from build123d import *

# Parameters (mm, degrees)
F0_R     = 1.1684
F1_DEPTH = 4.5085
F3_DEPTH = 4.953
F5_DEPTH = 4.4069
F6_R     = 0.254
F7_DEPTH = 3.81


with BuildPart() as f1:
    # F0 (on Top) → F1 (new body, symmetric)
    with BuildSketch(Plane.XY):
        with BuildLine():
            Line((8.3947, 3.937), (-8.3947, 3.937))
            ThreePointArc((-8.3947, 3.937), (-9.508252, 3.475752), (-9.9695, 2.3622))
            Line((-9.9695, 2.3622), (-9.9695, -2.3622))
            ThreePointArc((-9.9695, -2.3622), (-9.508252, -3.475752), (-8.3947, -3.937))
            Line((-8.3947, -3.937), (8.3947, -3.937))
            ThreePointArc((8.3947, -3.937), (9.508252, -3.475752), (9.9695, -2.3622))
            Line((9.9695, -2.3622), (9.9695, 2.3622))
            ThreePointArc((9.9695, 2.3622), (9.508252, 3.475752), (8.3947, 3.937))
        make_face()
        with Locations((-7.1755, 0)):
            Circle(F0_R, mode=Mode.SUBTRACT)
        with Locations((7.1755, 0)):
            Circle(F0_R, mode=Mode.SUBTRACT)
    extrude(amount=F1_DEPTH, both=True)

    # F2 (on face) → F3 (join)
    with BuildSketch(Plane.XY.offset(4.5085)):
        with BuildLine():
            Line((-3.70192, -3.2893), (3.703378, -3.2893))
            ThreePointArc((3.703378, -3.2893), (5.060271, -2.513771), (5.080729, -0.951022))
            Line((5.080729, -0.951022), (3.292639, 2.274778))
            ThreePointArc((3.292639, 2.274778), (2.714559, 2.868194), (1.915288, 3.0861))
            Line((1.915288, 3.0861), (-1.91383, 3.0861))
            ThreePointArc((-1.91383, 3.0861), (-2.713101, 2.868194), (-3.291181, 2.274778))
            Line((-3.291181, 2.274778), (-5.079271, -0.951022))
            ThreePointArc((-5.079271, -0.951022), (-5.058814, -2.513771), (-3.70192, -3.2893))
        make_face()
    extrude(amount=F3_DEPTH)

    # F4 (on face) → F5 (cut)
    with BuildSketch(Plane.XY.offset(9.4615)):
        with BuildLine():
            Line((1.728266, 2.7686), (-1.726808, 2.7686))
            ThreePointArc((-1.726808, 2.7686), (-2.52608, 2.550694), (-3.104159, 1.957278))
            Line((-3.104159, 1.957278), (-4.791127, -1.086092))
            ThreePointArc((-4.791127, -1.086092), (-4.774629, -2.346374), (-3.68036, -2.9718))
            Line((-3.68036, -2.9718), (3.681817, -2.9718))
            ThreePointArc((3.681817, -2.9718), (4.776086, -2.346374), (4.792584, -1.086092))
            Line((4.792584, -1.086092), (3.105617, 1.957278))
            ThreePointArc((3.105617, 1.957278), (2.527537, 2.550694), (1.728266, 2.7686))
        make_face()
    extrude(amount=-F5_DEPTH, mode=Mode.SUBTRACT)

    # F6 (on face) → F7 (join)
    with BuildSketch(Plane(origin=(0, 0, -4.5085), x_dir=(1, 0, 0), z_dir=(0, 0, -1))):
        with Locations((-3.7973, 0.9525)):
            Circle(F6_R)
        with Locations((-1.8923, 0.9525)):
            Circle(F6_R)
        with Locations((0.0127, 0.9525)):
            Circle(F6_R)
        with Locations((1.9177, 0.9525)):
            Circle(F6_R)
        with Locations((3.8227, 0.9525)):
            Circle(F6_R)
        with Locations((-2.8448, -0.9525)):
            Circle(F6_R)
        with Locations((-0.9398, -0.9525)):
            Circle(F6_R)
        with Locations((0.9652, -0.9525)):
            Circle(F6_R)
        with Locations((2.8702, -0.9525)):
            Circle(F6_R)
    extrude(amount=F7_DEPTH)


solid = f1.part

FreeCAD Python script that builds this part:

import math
import FreeCAD as App
import Part
import Sketcher
Q = App.Units.Quantity

doc = App.newDocument("Part")
params = doc.addObject("Spreadsheet::Sheet", "Params")
for row, (alias, value) in enumerate([
    ("sketch1_diameter", "0.092 in"),
    ("sketch1_radius", "0.062 in"),
    ("sketch1_width", "0.661 in"),
    ("sketch1_height", "0.186 in"),
    ("pad1_length", "0.355 in"),
    ("sketch2_radius", "0.062 in"),
    ("pad2_length", "0.195 in"),
    ("sketch3_radius", "0.05 in"),
    ("sketch3_radius2", "0.0619998 in"),
    ("sketch3_radius3", "0.0619999 in"),
    ("pocket1_length", "0.1735 in"),
    ("sketch4_diameter", "0.02 in"),
    ("pad3_length", "0.15 in"),
], start=1):
    params.set(f"A{row}", alias)
    params.set(f"B{row}", "=" + value)
    params.setAlias(f"B{row}", alias)

body = doc.addObject("PartDesign::Body", "Body")

# Sketch on XY plane
sketch1 = body.newObject("Sketcher::SketchObject", "Sketch")
sketch1.AttachmentSupport = (doc.getObject("XY_Plane"), [""])
sketch1.MapMode = "FlatFace"
sketch1.addGeometry([
    Part.LineSegment(App.Vector(8.3947, 3.937, 0), App.Vector(-8.3947, 3.937, 0)),  # 0
    Part.ArcOfCircle(Part.Circle(App.Vector(-8.394701, 2.362201, 0), App.Vector(0, 0, 1), 1.574799), math.radians(89.99997), math.radians(180.00003)),  # 1
    Part.LineSegment(App.Vector(-9.9695, 2.3622, 0), App.Vector(-9.9695, -2.3622, 0)),  # 2
    Part.ArcOfCircle(Part.Circle(App.Vector(-8.394701, -2.362201, 0), App.Vector(0, 0, 1), 1.574799), math.radians(179.99997), math.radians(270.00003)),  # 3
    Part.LineSegment(App.Vector(-8.3947, -3.937, 0), App.Vector(8.3947, -3.937, 0)),  # 4
    Part.ArcOfCircle(Part.Circle(App.Vector(8.394701, -2.362201, 0), App.Vector(0, 0, 1), 1.574799), math.radians(-90.00003), math.radians(0.00003)),  # 5
    Part.LineSegment(App.Vector(9.9695, -2.3622, 0), App.Vector(9.9695, 2.3622, 0)),  # 6
    Part.ArcOfCircle(Part.Circle(App.Vector(8.394701, 2.362201, 0), App.Vector(0, 0, 1), 1.574799), math.radians(-0.00003), math.radians(90.00003)),  # 7
    Part.Circle(App.Vector(-7.1755, 0, 0), App.Vector(0, 0, 1), 1.1684),  # 8
    Part.Circle(App.Vector(7.1755, 0, 0), App.Vector(0, 0, 1), 1.1684),  # 9
], False)
sketch1.addConstraint([
    Sketcher.Constraint("Tangent", 0, 2, 1, 1),
    Sketcher.Constraint("Tangent", 1, 2, 2, 1),
    Sketcher.Constraint("Tangent", 2, 2, 3, 1),
    Sketcher.Constraint("Tangent", 3, 2, 4, 1),
    Sketcher.Constraint("Tangent", 4, 2, 5, 1),
    Sketcher.Constraint("Tangent", 5, 2, 6, 1),
    Sketcher.Constraint("Tangent", 6, 2, 7, 1),
    Sketcher.Constraint("Tangent", 7, 2, 0, 1),
    Sketcher.Constraint("Horizontal", 0),
    Sketcher.Constraint("Vertical", 2),
    Sketcher.Constraint("Horizontal", 4),
    Sketcher.Constraint("Vertical", 6),
    Sketcher.Constraint("Equal", 1, 3),
    Sketcher.Constraint("Equal", 3, 5),
    Sketcher.Constraint("Equal", 5, 7),
    Sketcher.Constraint("Equal", 8, 9),
    Sketcher.Constraint("Symmetric", 1, 3, 5, 3, -1, 1),
    Sketcher.Constraint("Symmetric", 8, 3, 9, 3, -1, 1),
    Sketcher.Constraint("PointOnObject", 8, 3, -1),
    Sketcher.Constraint("Diameter", 8, Q("0.092 in")),
    Sketcher.Constraint("Radius", 1, Q("0.062 in")),
    Sketcher.Constraint("DistanceX", 0, 2, 0, 1, Q("0.661 in")),
    Sketcher.Constraint("DistanceY", 2, 2, 2, 1, Q("0.186 in")),
    Sketcher.Constraint("DistanceX", 1, 2, 8, 3, Q("0.11 in")),
])
sketch1.setExpression("Constraints[19]", "Params.sketch1_diameter")
sketch1.setExpression("Constraints[20]", "Params.sketch1_radius")
sketch1.setExpression("Constraints[21]", "Params.sketch1_width")
sketch1.setExpression("Constraints[22]", "Params.sketch1_height")
pad1 = body.newObject("PartDesign::Pad", "Pad")
pad1.Profile = sketch1
pad1.setExpression("Length", "Params.pad1_length")
pad1.Midplane = True

# Sketch on XY plane
sketch2 = body.newObject("Sketcher::SketchObject", "Sketch001")
sketch2.AttachmentSupport = (doc.getObject("XY_Plane"), [""])
sketch2.MapMode = "FlatFace"
sketch2.AttachmentOffset = App.Placement(App.Vector(0, 0, 0.1775 * 25.4), App.Rotation())
sketch2.addGeometry([
    Part.LineSegment(App.Vector(-3.70192, -3.2893, 0), App.Vector(3.703378, -3.2893, 0)),  # 0
    Part.ArcOfCircle(Part.Circle(App.Vector(3.703377, -1.714499, 0), App.Vector(0, 0, 1), 1.574801), math.radians(-89.999958), math.radians(28.999958)),  # 1
    Part.LineSegment(App.Vector(5.080729, -0.951022, 0), App.Vector(3.292639, 2.274778, 0)),  # 2
    Part.ArcOfCircle(Part.Circle(App.Vector(1.915289, 1.511302, 0), App.Vector(0, 0, 1), 1.574798), math.radians(28.999959), math.radians(90.000025)),  # 3
    Part.LineSegment(App.Vector(1.915288, 3.0861, 0), App.Vector(-1.91383, 3.0861, 0)),  # 4
    Part.ArcOfCircle(Part.Circle(App.Vector(-1.913831, 1.511302, 0), App.Vector(0, 0, 1), 1.574798), math.radians(89.999975), math.radians(151.000041)),  # 5
    Part.LineSegment(App.Vector(-3.291181, 2.274778, 0), App.Vector(-5.079271, -0.951022, 0)),  # 6
    Part.ArcOfCircle(Part.Circle(App.Vector(-3.70192, -1.7145, 0), App.Vector(0, 0, 1), 1.5748), math.radians(150.999987), math.radians(270.000013)),  # 7
], False)
sketch2.addConstraint([
    Sketcher.Constraint("Tangent", 0, 2, 1, 1),
    Sketcher.Constraint("Tangent", 1, 2, 2, 1),
    Sketcher.Constraint("Tangent", 2, 2, 3, 1),
    Sketcher.Constraint("Tangent", 3, 2, 4, 1),
    Sketcher.Constraint("Tangent", 4, 2, 5, 1),
    Sketcher.Constraint("Tangent", 5, 2, 6, 1),
    Sketcher.Constraint("Tangent", 6, 2, 7, 1),
    Sketcher.Constraint("Tangent", 7, 2, 0, 1),
    Sketcher.Constraint("Horizontal", 0),
    Sketcher.Constraint("Horizontal", 4),
    Sketcher.Constraint("Equal", 3, 5),
    Sketcher.Constraint("Equal", 5, 7),
    Sketcher.Constraint("Horizontal", 1, 3, 7, 3),
    Sketcher.Constraint("Horizontal", 2, 2, 5, 2),
    Sketcher.Constraint("Angle", 2, Q("118.999998 deg")),
    Sketcher.Constraint("Radius", 1, Q("0.062 in")),
    Sketcher.Constraint("DistanceY", 1, 3, 3, 3, Q("0.127 in")),
    Sketcher.Constraint("DistanceY", 1, 3, -1, 1, Q("0.0675 in")),
    Sketcher.Constraint("DistanceX", 4, 2, 4, 1, 3.829118),
    Sketcher.Constraint("DistanceX", -1, 1, 3, 3, 1.915289),
])
sketch2.setExpression("Constraints[15]", "Params.sketch2_radius")
pad2 = body.newObject("PartDesign::Pad", "Pad001")
pad2.Profile = sketch2
pad2.setExpression("Length", "Params.pad2_length")

# Sketch on XY plane
sketch3 = body.newObject("Sketcher::SketchObject", "Sketch002")
sketch3.AttachmentSupport = (doc.getObject("XY_Plane"), [""])
sketch3.MapMode = "FlatFace"
sketch3.AttachmentOffset = App.Placement(App.Vector(0, 0, 0.3725 * 25.4), App.Rotation())
sketch3.addGeometry([
    Part.LineSegment(App.Vector(1.728266, 2.7686, 0), App.Vector(-1.726808, 2.7686, 0)),  # 0
    Part.ArcOfCircle(Part.Circle(App.Vector(-1.726811, 1.193805, 0), App.Vector(0, 0, 1), 1.574795), math.radians(89.999908), math.radians(151.000108)),  # 1
    Part.LineSegment(App.Vector(-3.104159, 1.957278, 0), App.Vector(-4.791127, -1.086092, 0)),  # 2
    Part.ArcOfCircle(Part.Circle(App.Vector(-3.68036, -1.7018, 0), App.Vector(0, 0, 1), 1.27), math.radians(150.999992), math.radians(270.000012)),  # 3
    Part.LineSegment(App.Vector(-3.68036, -2.9718, 0), App.Vector(3.681817, -2.9718, 0)),  # 4
    Part.ArcOfCircle(Part.Circle(App.Vector(3.681817, -1.7018, 0), App.Vector(0, 0, 1), 1.27), math.radians(-90.000012), math.radians(29.000008)),  # 5
    Part.LineSegment(App.Vector(4.792584, -1.086092, 0), App.Vector(3.105617, 1.957278, 0)),  # 6
    Part.ArcOfCircle(Part.Circle(App.Vector(1.728267, 1.193802, 0), App.Vector(0, 0, 1), 1.574798), math.radians(28.999959), math.radians(90.000025)),  # 7
], False)
sketch3.addConstraint([
    Sketcher.Constraint("Tangent", 0, 2, 1, 1),
    Sketcher.Constraint("Coincident", 1, 2, 2, 1),
    Sketcher.Constraint("Tangent", 2, 2, 3, 1),
    Sketcher.Constraint("Tangent", 3, 2, 4, 1),
    Sketcher.Constraint("Tangent", 4, 2, 5, 1),
    Sketcher.Constraint("Tangent", 5, 2, 6, 1),
    Sketcher.Constraint("Tangent", 6, 2, 7, 1),
    Sketcher.Constraint("Tangent", 7, 2, 0, 1),
    Sketcher.Constraint("Horizontal", 0),
    Sketcher.Constraint("Horizontal", 4),
    Sketcher.Constraint("Equal", 3, 5),
    Sketcher.Constraint("Horizontal", 2, 2, 5, 2),
    Sketcher.Constraint("Horizontal", 1, 2, 6, 2),
    Sketcher.Constraint("Radius", 3, Q("0.05 in")),
    Sketcher.Constraint("Angle", 2, Q("-119.000007 deg")),
    Sketcher.Constraint("Radius", 1, Q("0.0619998 in")),
    Sketcher.Constraint("Radius", 7, Q("0.0619999 in")),
    Sketcher.Constraint("DistanceY", -1, 1, 1, 3, Q("0.0470002 in")),
    Sketcher.Constraint("DistanceY", 3, 3, -1, 1, Q("0.067 in")),
    Sketcher.Constraint("DistanceX", 0, 2, 0, 1, 3.455074),
    Sketcher.Constraint("DistanceX", 1, 3, -1, 1, 1.726811),
])
sketch3.setExpression("Constraints[13]", "Params.sketch3_radius")
sketch3.setExpression("Constraints[15]", "Params.sketch3_radius2")
sketch3.setExpression("Constraints[16]", "Params.sketch3_radius3")
pocket1 = body.newObject("PartDesign::Pocket", "Pocket")
pocket1.Profile = sketch3
pocket1.setExpression("Length", "Params.pocket1_length")

# Sketch on XY plane
sketch4 = body.newObject("Sketcher::SketchObject", "Sketch003")
sketch4.AttachmentSupport = (doc.getObject("XY_Plane"), [""])
sketch4.MapMode = "FlatFace"
sketch4.AttachmentOffset = App.Placement(App.Vector(0, 0, -0.1775 * 25.4), App.Rotation())
sketch4.addGeometry([
    Part.Circle(App.Vector(-3.7973, -0.9525, 0), App.Vector(0, 0, 1), 0.254),  # 0
    Part.Circle(App.Vector(-1.8923, -0.9525, 0), App.Vector(0, 0, 1), 0.254),  # 1
    Part.Circle(App.Vector(0.0127, -0.9525, 0), App.Vector(0, 0, 1), 0.254),  # 2
    Part.Circle(App.Vector(1.9177, -0.9525, 0), App.Vector(0, 0, 1), 0.254),  # 3
    Part.Circle(App.Vector(3.8227, -0.9525, 0), App.Vector(0, 0, 1), 0.254),  # 4
    Part.Circle(App.Vector(-2.8448, 0.9525, 0), App.Vector(0, 0, 1), 0.254),  # 5
    Part.Circle(App.Vector(-0.9398, 0.9525, 0), App.Vector(0, 0, 1), 0.254),  # 6
    Part.Circle(App.Vector(0.9652, 0.9525, 0), App.Vector(0, 0, 1), 0.254),  # 7
    Part.Circle(App.Vector(2.8702, 0.9525, 0), App.Vector(0, 0, 1), 0.254),  # 8
], False)
sketch4.addConstraint([
    Sketcher.Constraint("Equal", 0, 1),
    Sketcher.Constraint("Equal", 1, 2),
    Sketcher.Constraint("Equal", 2, 3),
    Sketcher.Constraint("Equal", 3, 4),
    Sketcher.Constraint("Equal", 4, 5),
    Sketcher.Constraint("Equal", 5, 6),
    Sketcher.Constraint("Equal", 6, 7),
    Sketcher.Constraint("Equal", 7, 8),
    Sketcher.Constraint("Horizontal", 0, 3, 1, 3),
    Sketcher.Constraint("Horizontal", 1, 3, 2, 3),
    Sketcher.Constraint("Horizontal", 2, 3, 3, 3),
    Sketcher.Constraint("Horizontal", 3, 3, 4, 3),
    Sketcher.Constraint("Horizontal", 5, 3, 6, 3),
    Sketcher.Constraint("Horizontal", 6, 3, 7, 3),
    Sketcher.Constraint("Horizontal", 7, 3, 8, 3),
    Sketcher.Constraint("Diameter", 0, Q("0.02 in")),
    Sketcher.Constraint("DistanceX", 0, 3, 4, 3, Q("0.3 in")),
    Sketcher.Constraint("DistanceX", 0, 3, 2, 3, Q("0.15 in")),
    Sketcher.Constraint("DistanceX", 1, 3, 3, 3, Q("0.15 in")),
    Sketcher.Constraint("DistanceX", 6, 3, 8, 3, Q("0.15 in")),
    Sketcher.Constraint("DistanceX", 5, 3, -1, 1, Q("0.112 in")),
    Sketcher.Constraint("DistanceX", 6, 3, -1, 1, Q("0.037 in")),
    Sketcher.Constraint("DistanceX", -1, 1, 7, 3, Q("0.038 in")),
    Sketcher.Constraint("DistanceX", 0, 3, 1, 3, Q("0.075 in")),
    Sketcher.Constraint("DistanceY", 0, 3, 5, 3, Q("0.075 in")),
    Sketcher.Constraint("DistanceX", 5, 3, 3, 3, Q("0.1875 in")),
    Sketcher.Constraint("DistanceY", 0, 3, -1, 1, Q("0.0375 in")),
])
sketch4.setExpression("Constraints[15]", "Params.sketch4_diameter")
pad3 = body.newObject("PartDesign::Pad", "Pad002")
pad3.Profile = sketch4
pad3.setExpression("Length", "Params.pad3_length")
pad3.Reversed = True

doc.recompute()
